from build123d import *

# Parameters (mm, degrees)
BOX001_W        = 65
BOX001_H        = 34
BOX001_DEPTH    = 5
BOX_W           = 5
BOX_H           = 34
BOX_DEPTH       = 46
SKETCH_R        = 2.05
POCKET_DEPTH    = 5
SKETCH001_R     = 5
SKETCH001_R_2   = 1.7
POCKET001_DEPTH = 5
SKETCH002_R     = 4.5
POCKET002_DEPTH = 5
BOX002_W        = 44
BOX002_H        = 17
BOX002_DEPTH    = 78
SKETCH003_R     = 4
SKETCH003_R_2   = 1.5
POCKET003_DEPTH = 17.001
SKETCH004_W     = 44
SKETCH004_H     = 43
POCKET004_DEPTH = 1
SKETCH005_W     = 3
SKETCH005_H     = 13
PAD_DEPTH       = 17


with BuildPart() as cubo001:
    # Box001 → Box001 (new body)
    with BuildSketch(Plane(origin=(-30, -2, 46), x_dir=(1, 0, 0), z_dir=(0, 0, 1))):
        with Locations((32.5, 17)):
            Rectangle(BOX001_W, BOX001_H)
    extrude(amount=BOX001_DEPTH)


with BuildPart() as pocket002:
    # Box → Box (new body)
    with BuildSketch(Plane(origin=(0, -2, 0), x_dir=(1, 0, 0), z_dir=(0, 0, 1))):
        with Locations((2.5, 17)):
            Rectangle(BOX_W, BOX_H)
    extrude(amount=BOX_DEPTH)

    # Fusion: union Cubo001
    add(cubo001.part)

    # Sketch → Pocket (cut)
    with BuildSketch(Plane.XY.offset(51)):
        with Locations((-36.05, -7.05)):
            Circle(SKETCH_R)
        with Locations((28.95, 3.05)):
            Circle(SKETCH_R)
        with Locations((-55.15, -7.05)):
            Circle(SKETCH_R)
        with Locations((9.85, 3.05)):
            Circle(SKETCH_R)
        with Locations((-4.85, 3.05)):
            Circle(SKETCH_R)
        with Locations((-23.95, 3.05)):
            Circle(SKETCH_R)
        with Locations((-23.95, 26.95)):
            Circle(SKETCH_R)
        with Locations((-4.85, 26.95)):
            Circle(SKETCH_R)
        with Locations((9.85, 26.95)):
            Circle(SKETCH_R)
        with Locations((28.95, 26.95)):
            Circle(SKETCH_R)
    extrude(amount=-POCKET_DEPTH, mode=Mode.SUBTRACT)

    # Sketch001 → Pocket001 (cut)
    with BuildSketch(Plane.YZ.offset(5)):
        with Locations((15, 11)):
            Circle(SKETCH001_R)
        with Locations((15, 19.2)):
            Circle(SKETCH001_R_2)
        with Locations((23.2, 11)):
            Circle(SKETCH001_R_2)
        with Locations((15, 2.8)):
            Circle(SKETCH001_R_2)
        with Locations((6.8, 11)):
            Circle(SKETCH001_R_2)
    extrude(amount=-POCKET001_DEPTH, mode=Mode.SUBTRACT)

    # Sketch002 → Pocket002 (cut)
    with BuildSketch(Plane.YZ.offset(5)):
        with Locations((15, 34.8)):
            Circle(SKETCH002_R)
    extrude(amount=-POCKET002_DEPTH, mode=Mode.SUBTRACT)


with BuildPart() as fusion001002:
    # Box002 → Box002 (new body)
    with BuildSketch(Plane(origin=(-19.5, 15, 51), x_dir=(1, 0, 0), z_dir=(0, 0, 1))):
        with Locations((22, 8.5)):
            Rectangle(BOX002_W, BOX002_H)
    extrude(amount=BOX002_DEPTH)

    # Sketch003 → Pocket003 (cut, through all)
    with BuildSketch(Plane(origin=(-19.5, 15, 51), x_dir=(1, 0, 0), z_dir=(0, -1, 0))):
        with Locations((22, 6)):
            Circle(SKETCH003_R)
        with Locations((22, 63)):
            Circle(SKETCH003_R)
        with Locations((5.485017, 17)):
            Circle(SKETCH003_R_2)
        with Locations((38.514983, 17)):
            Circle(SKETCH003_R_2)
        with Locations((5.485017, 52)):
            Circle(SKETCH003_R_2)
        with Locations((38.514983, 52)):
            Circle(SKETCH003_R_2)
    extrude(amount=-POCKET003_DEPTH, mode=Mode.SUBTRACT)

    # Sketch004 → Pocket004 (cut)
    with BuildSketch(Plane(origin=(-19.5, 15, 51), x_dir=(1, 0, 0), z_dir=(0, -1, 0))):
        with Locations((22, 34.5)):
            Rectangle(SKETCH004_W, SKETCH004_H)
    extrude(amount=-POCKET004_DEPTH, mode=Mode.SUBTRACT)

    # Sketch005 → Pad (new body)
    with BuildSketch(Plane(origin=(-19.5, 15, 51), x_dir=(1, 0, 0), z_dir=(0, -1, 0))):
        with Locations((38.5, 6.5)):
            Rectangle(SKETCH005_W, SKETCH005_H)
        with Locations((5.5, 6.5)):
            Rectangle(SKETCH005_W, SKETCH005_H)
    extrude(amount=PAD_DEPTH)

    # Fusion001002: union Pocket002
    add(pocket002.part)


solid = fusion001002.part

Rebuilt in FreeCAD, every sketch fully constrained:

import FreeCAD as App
import Part
import Sketcher
from FreeCAD import Vector
Q = App.Units.Quantity


def add_polygon(sketch, points):
    """Adds a closed chain of lines whose ends are joined by coincident constraints."""
    first, n = sketch.GeometryCount, len(points)
    for a, b in zip(points, points[1:] + points[:1]):
        sketch.addGeometry(Part.LineSegment(App.Vector(*a, 0), App.Vector(*b, 0)), False)
    for i in range(n):
        sketch.addConstraint(Sketcher.Constraint("Coincident", first + i, 2, first + (i + 1) % n, 1))

doc = App.newDocument("Part")
body = doc.addObject("PartDesign::Body", "Body")

# Sketch on XY plane
sketch1 = body.newObject("Sketcher::SketchObject", "Sketch")
sketch1.AttachmentSupport = (doc.getObject("XY_Plane"), [""])
sketch1.MapMode = "FlatFace"
sketch1.AttachmentOffset = App.Placement(Vector(0, 0, 46), App.Rotation())
add_polygon(sketch1, [(-30, 32), (-30, -2), (35, -2), (35, 32)])  # lines 0-3
sketch1.addConstraint(Sketcher.Constraint("Vertical", 0))
sketch1.addConstraint(Sketcher.Constraint("Horizontal", 1))
sketch1.addConstraint(Sketcher.Constraint("Vertical", 2))
sketch1.addConstraint(Sketcher.Constraint("Horizontal", 3))
sketch1.addConstraint(Sketcher.Constraint("DistanceX", 1, 1, 1, 2, Q("65 mm")))
sketch1.addConstraint(Sketcher.Constraint("DistanceY", 0, 2, 0, 1, Q("34 mm")))
sketch1.addConstraint(Sketcher.Constraint("DistanceX", 0, 2, -1, 1, Q("30 mm")))
sketch1.addConstraint(Sketcher.Constraint("DistanceY", 0, 2, -1, 1, Q("2 mm")))
pad1 = body.newObject("PartDesign::Pad", "Pad")
pad1.Profile = sketch1
pad1.Length = 5
body2 = doc.addObject("PartDesign::Body", "Body001")

# Sketch on XY plane
sketch2 = body2.newObject("Sketcher::SketchObject", "Sketch001")
sketch2.AttachmentSupport = (doc.getObject("XY_Plane001"), [""])
sketch2.MapMode = "FlatFace"
add_polygon(sketch2, [(0, 32), (0, -2), (5, -2), (5, 32)])  # lines 0-3
sketch2.addConstraint(Sketcher.Constraint("Vertical", 0))
sketch2.addConstraint(Sketcher.Constraint("Horizontal", 1))
sketch2.addConstraint(Sketcher.Constraint("Vertical", 2))
sketch2.addConstraint(Sketcher.Constraint("Horizontal", 3))
sketch2.addConstraint(Sketcher.Constraint("PointOnObject", 0, 2, -2))
sketch2.addConstraint(Sketcher.Constraint("DistanceX", 1, 1, 1, 2, Q("5 mm")))
sketch2.addConstraint(Sketcher.Constraint("DistanceY", 0, 2, 0, 1, Q("34 mm")))
sketch2.addConstraint(Sketcher.Constraint("DistanceY", 0, 2, -1, 1, Q("2 mm")))
pad2 = body2.newObject("PartDesign::Pad", "Pad001")
pad2.Profile = sketch2
pad2.Length = 46
doc.recompute()

boolean = body2.newObject("PartDesign::Boolean", "Boolean")
boolean.Type = "Fuse"
boolean.addObjects([body])

# Sketch on XY plane
sketch3 = body2.newObject("Sketcher::SketchObject", "Sketch002")
sketch3.AttachmentSupport = (doc.getObject("XY_Plane001"), [""])
sketch3.MapMode = "FlatFace"
sketch3.AttachmentOffset = App.Placement(Vector(0, 0, 51), App.Rotation())
sketch3.addGeometry(Part.Circle(Vector(-36.05, -7.05, 0), Vector(0, 0, 1), 2.05), False)
sketch3.addGeometry(Part.Circle(Vector(28.95, 3.05, 0), Vector(0, 0, 1), 2.05), False)
sketch3.addGeometry(Part.Circle(Vector(-55.15, -7.05, 0), Vector(0, 0, 1), 2.05), False)
sketch3.addGeometry(Part.Circle(Vector(9.85, 3.05, 0), Vector(0, 0, 1), 2.05), False)
sketch3.addGeometry(Part.Circle(Vector(-4.85, 3.05, 0), Vector(0, 0, 1), 2.05), False)
sketch3.addGeometry(Part.Circle(Vector(-23.95, 3.05, 0), Vector(0, 0, 1), 2.05), False)
sketch3.addGeometry(Part.Circle(Vector(-23.95, 26.95, 0), Vector(0, 0, 1), 2.05), False)
sketch3.addGeometry(Part.Circle(Vector(-4.85, 26.95, 0), Vector(0, 0, 1), 2.05), False)
sketch3.addGeometry(Part.Circle(Vector(9.85, 26.95, 0), Vector(0, 0, 1), 2.05), False)
sketch3.addGeometry(Part.Circle(Vector(28.95, 26.95, 0), Vector(0, 0, 1), 2.05), False)
sketch3.addConstraint(Sketcher.Constraint("Equal", 0, 1))
sketch3.addConstraint(Sketcher.Constraint("Equal", 1, 2))
sketch3.addConstraint(Sketcher.Constraint("Equal", 2, 3))
sketch3.addConstraint(Sketcher.Constraint("Equal", 3, 4))
sketch3.addConstraint(Sketcher.Constraint("Equal", 4, 5))
sketch3.addConstraint(Sketcher.Constraint("Equal", 5, 6))
sketch3.addConstraint(Sketcher.Constraint("Equal", 6, 7))
sketch3.addConstraint(Sketcher.Constraint("Equal", 7, 8))
sketch3.addConstraint(Sketcher.Constraint("Equal", 8, 9))
sketch3.addConstraint(Sketcher.Constraint("Horizontal", 0, 3, 2, 3))
sketch3.addConstraint(Sketcher.Constraint("Horizontal", 1, 3, 3, 3))
sketch3.addConstraint(Sketcher.Constraint("Horizontal", 3, 3, 4, 3))
sketch3.addConstraint(Sketcher.Constraint("Horizontal", 4, 3, 5, 3))
sketch3.addConstraint(Sketcher.Constraint("Horizontal", 6, 3, 7, 3))
sketch3.addConstraint(Sketcher.Constraint("Horizontal", 7, 3, 8, 3))
sketch3.addConstraint(Sketcher.Constraint("Horizontal", 8, 3, 9, 3))
sketch3.addConstraint(Sketcher.Constraint("Vertical", 5, 3, 6, 3))
sketch3.addConstraint(Sketcher.Constraint("Vertical", 4, 3, 7, 3))
sketch3.addConstraint(Sketcher.Constraint("Vertical", 3, 3, 8, 3))
sketch3.addConstraint(Sketcher.Constraint("Vertical", 1, 3, 9, 3))
sketch3.addConstraint(Sketcher.Constraint("Diameter", 0, Q("4.1 mm")))
sketch3.addConstraint(Sketcher.Constraint("DistanceX", 0, 3, 1, 3, Q("65 mm")))
sketch3.addConstraint(Sketcher.Constraint("DistanceX", 2, 3, 3, 3, Q("65 mm")))
sketch3.addConstraint(Sketcher.Constraint("DistanceY", 0, 3, 6, 3, Q("34 mm")))
sketch3.addConstraint(Sketcher.Constraint("DistanceY", 0, 3, 1, 3, Q("10.1 mm")))
sketch3.addConstraint(Sketcher.Constraint("DistanceX", 2, 3, 0, 3, Q("19.1 mm")))
sketch3.addConstraint(Sketcher.Constraint("DistanceX", 4, 3, 3, 3, Q("14.7 mm")))
sketch3.addConstraint(Sketcher.Constraint("DistanceX", 0, 3, 5, 3, Q("12.1 mm")))
sketch3.addConstraint(Sketcher.Constraint("DistanceX", 0, 3, -1, 1, Q("36.05 mm")))
sketch3.addConstraint(Sketcher.Constraint("DistanceY", 0, 3, -1, 1, Q("7.05 mm")))
pocket1 = body2.newObject("PartDesign::Pocket", "Pocket")
pocket1.Profile = sketch3
pocket1.Length = 5

# Sketch on YZ plane
sketch4 = body2.newObject("Sketcher::SketchObject", "Sketch003")
sketch4.AttachmentSupport = (doc.getObject("YZ_Plane001"), [""])
sketch4.MapMode = "FlatFace"
sketch4.AttachmentOffset = App.Placement(Vector(0, 0, 5), App.Rotation())
sketch4.addGeometry(Part.Circle(Vector(15, 11, 0), Vector(0, 0, 1), 5), False)
sketch4.addGeometry(Part.Circle(Vector(15, 19.2, 0), Vector(0, 0, 1), 1.7), False)
sketch4.addGeometry(Part.Circle(Vector(23.2, 11, 0), Vector(0, 0, 1), 1.7), False)
sketch4.addGeometry(Part.Circle(Vector(15, 2.8, 0), Vector(0, 0, 1), 1.7), False)
sketch4.addGeometry(Part.Circle(Vector(6.8, 11, 0), Vector(0, 0, 1), 1.7), False)
sketch4.addConstraint(Sketcher.Constraint("Equal", 1, 2))
sketch4.addConstraint(Sketcher.Constraint("Equal", 2, 3))
sketch4.addConstraint(Sketcher.Constraint("Equal", 3, 4))
sketch4.addConstraint(Sketcher.Constraint("Horizontal", 0, 3, 2, 3))
sketch4.addConstraint(Sketcher.Constraint("Horizontal", 2, 3, 4, 3))
sketch4.addConstraint(Sketcher.Constraint("Vertical", 0, 3, 1, 3))
sketch4.addConstraint(Sketcher.Constraint("Vertical", 1, 3, 3, 3))
sketch4.addConstraint(Sketcher.Constraint("Diameter", 0, Q("10 mm")))
sketch4.addConstraint(Sketcher.Constraint("Diameter", 1, Q("3.4 mm")))
sketch4.addConstraint(Sketcher.Constraint("DistanceX", -1, 1, 0, 3, Q("15 mm")))
sketch4.addConstraint(Sketcher.Constraint("DistanceY", -1, 1, 0, 3, Q("11 mm")))
sketch4.addConstraint(Sketcher.Constraint("DistanceY", -1, 1, 1, 3, Q("19.2 mm")))
sketch4.addConstraint(Sketcher.Constraint("DistanceX", -1, 1, 2, 3, Q("23.2 mm")))
sketch4.addConstraint(Sketcher.Constraint("DistanceY", -1, 1, 3, 3, Q("2.8 mm")))
sketch4.addConstraint(Sketcher.Constraint("DistanceX", -1, 1, 4, 3, Q("6.8 mm")))
pocket2 = body2.newObject("PartDesign::Pocket", "Pocket001")
pocket2.Profile = sketch4
pocket2.Length = 5

# Sketch on YZ plane
sketch5 = body2.newObject("Sketcher::SketchObject", "Sketch004")
sketch5.AttachmentSupport = (doc.getObject("YZ_Plane001"), [""])
sketch5.MapMode = "FlatFace"
sketch5.AttachmentOffset = App.Placement(Vector(0, 0, 5), App.Rotation())
sketch5.addGeometry(Part.Circle(Vector(15, 34.8, 0), Vector(0, 0, 1), 4.5), False)
sketch5.addConstraint(Sketcher.Constraint("Diameter", 0, Q("9 mm")))
sketch5.addConstraint(Sketcher.Constraint("DistanceX", -1, 1, 0, 3, Q("15 mm")))
sketch5.addConstraint(Sketcher.Constraint("DistanceY", -1, 1, 0, 3, Q("34.8 mm")))
pocket3 = body2.newObject("PartDesign::Pocket", "Pocket002")
pocket3.Profile = sketch5
pocket3.Length = 5
body3 = doc.addObject("PartDesign::Body", "Body002")

# Sketch on XY plane
sketch6 = body3.newObject("Sketcher::SketchObject", "Sketch005")
sketch6.AttachmentSupport = (doc.getObject("XY_Plane002"), [""])
sketch6.MapMode = "FlatFace"
sketch6.AttachmentOffset = App.Placement(Vector(0, 0, 51), App.Rotation())
add_polygon(sketch6, [(-19.5, 32), (-19.5, 15), (24.5, 15), (24.5, 32)])  # lines 0-3
sketch6.addConstraint(Sketcher.Constraint("Vertical", 0))
sketch6.addConstraint(Sketcher.Constraint("Horizontal", 1))
sketch6.addConstraint(Sketcher.Constraint("Vertical", 2))
sketch6.addConstraint(Sketcher.Constraint("Horizontal", 3))
sketch6.addConstraint(Sketcher.Constraint("DistanceX", 1, 1, 1, 2, Q("44 mm")))
sketch6.addConstraint(Sketcher.Constraint("DistanceY", 0, 2, 0, 1, Q("17 mm")))
sketch6.addConstraint(Sketcher.Constraint("DistanceY", -1, 1, 0, 2, Q("15 mm")))
sketch6.addConstraint(Sketcher.Constraint("DistanceX", 0, 2, -1, 1, Q("19.5 mm")))
pad3 = body3.newObject("PartDesign::Pad", "Pad002")
pad3.Profile = sketch6
pad3.Length = 78

# Sketch on XZ plane
sketch7 = body3.newObject("Sketcher::SketchObject", "Sketch006")
sketch7.AttachmentSupport = (doc.getObject("XZ_Plane002"), [""])
sketch7.MapMode = "FlatFace"
sketch7.AttachmentOffset = App.Placement(Vector(0, 0, -15), App.Rotation())
sketch7.addGeometry(Part.Circle(Vector(2.5, 57, 0), Vector(0, 0, 1), 4), False)
sketch7.addGeometry(Part.Circle(Vector(2.5, 114, 0), Vector(0, 0, 1), 4), False)
sketch7.addGeometry(Part.Circle(Vector(-14.014983, 68, 0), Vector(0, 0, 1), 1.5), False)
sketch7.addGeometry(Part.Circle(Vector(19.014983, 68, 0), Vector(0, 0, 1), 1.5), False)
sketch7.addGeometry(Part.Circle(Vector(-14.014983, 103, 0), Vector(0, 0, 1), 1.5), False)
sketch7.addGeometry(Part.Circle(Vector(19.014983, 103, 0), Vector(0, 0, 1), 1.5), False)
sketch7.addConstraint(Sketcher.Constraint("Equal", 0, 1))
sketch7.addConstraint(Sketcher.Constraint("Equal", 2, 3))
sketch7.addConstraint(Sketcher.Constraint("Equal", 3, 4))
sketch7.addConstraint(Sketcher.Constraint("Equal", 4, 5))
sketch7.addConstraint(Sketcher.Constraint("Horizontal", 2, 3, 3, 3))
sketch7.addConstraint(Sketcher.Constraint("Horizontal", 4, 3, 5, 3))
sketch7.addConstraint(Sketcher.Constraint("Vertical", 0, 3, 1, 3))
sketch7.addConstraint(Sketcher.Constraint("Vertical", 2, 3, 4, 3))
sketch7.addConstraint(Sketcher.Constraint("Vertical", 3, 3, 5, 3))
sketch7.addConstraint(Sketcher.Constraint("Diameter", 0, Q("8 mm")))
sketch7.addConstraint(Sketcher.Constraint("Diameter", 2, Q("3 mm")))
sketch7.addConstraint(Sketcher.Constraint("DistanceY", -1, 1, 0, 3, Q("57 mm")))
sketch7.addConstraint(Sketcher.Constraint("DistanceY", -1, 1, 1, 3, Q("114 mm")))
sketch7.addConstraint(Sketcher.Constraint("DistanceY", -1, 1, 2, 3, Q("68 mm")))
sketch7.addConstraint(Sketcher.Constraint("DistanceY", -1, 1, 4, 3, Q("103 mm")))
sketch7.addConstraint(Sketcher.Constraint("DistanceX", -1, 1, 0, 3, Q("2.5 mm")))
sketch7.addConstraint(Sketcher.Constraint("DistanceX", 2, 3, -1, 1, Q("14.014983 mm")))
sketch7.addConstraint(Sketcher.Constraint("DistanceX", -1, 1, 3, 3, Q("19.014983 mm")))
pocket4 = body3.newObject("PartDesign::Pocket", "Pocket003")
pocket4.Profile = sketch7
pocket4.Type = "ThroughAll"

# Sketch on XZ plane
sketch8 = body3.newObject("Sketcher::SketchObject", "Sketch007")
sketch8.AttachmentSupport = (doc.getObject("XZ_Plane002"), [""])
sketch8.MapMode = "FlatFace"
sketch8.AttachmentOffset = App.Placement(Vector(0, 0, -15), App.Rotation())
add_polygon(sketch8, [(-19.5, 107), (-19.5, 64), (24.5, 64), (24.5, 107)])  # lines 0-3
sketch8.addConstraint(Sketcher.Constraint("Vertical", 0))
sketch8.addConstraint(Sketcher.Constraint("Horizontal", 1))
sketch8.addConstraint(Sketcher.Constraint("Vertical", 2))
sketch8.addConstraint(Sketcher.Constraint("Horizontal", 3))
sketch8.addConstraint(Sketcher.Constraint("DistanceX", 1, 1, 1, 2, Q("44 mm")))
sketch8.addConstraint(Sketcher.Constraint("DistanceY", 0, 2, 0, 1, Q("43 mm")))
sketch8.addConstraint(Sketcher.Constraint("DistanceY", -1, 1, 0, 2, Q("64 mm")))
sketch8.addConstraint(Sketcher.Constraint("DistanceX", 0, 2, -1, 1, Q("19.5 mm")))
pocket5 = body3.newObject("PartDesign::Pocket", "Pocket004")
pocket5.Profile = sketch8
pocket5.Length = 1

# Sketch on XZ plane
sketch9 = body3.newObject("Sketcher::SketchObject", "Sketch008")
sketch9.AttachmentSupport = (doc.getObject("XZ_Plane002"), [""])
sketch9.MapMode = "FlatFace"
sketch9.AttachmentOffset = App.Placement(Vector(0, 0, -15), App.Rotation())
add_polygon(sketch9, [(17.5, 64), (17.5, 51), (20.5, 51), (20.5, 64)])  # lines 0-3
add_polygon(sketch9, [(-15.5, 64), (-15.5, 51), (-12.5, 51), (-12.5, 64)])  # lines 4-7
sketch9.addConstraint(Sketcher.Constraint("Vertical", 0))
sketch9.addConstraint(Sketcher.Constraint("Horizontal", 1))
sketch9.addConstraint(Sketcher.Constraint("Vertical", 2))
sketch9.addConstraint(Sketcher.Constraint("Horizontal", 3))
sketch9.addConstraint(Sketcher.Constraint("Vertical", 4))
sketch9.addConstraint(Sketcher.Constraint("Horizontal", 5))
sketch9.addConstraint(Sketcher.Constraint("Vertical", 6))
sketch9.addConstraint(Sketcher.Constraint("Horizontal", 7))
sketch9.addConstraint(Sketcher.Constraint("Horizontal", 1, 2, 4, 2))
sketch9.addConstraint(Sketcher.Constraint("Horizontal", 3, 2, 6, 2))
sketch9.addConstraint(Sketcher.Constraint("Equal", 3, 5))
sketch9.addConstraint(Sketcher.Constraint("DistanceX", 1, 1, 1, 2, Q("3 mm")))
sketch9.addConstraint(Sketcher.Constraint("DistanceY", 0, 2, 0, 1, Q("13 mm")))
sketch9.addConstraint(Sketcher.Constraint("DistanceY", -1, 1, 0, 2, Q("51 mm")))
sketch9.addConstraint(Sketcher.Constraint("DistanceX", 4, 2, 0, 2, Q("33 mm")))
sketch9.addConstraint(Sketcher.Constraint("DistanceX", -1, 1, 0, 2, Q("17.5 mm")))
pad4 = body3.newObject("PartDesign::Pad", "Pad003")
pad4.Profile = sketch9
pad4.Length = 17
doc.recompute()

boolean2 = body3.newObject("PartDesign::Boolean", "Boolean001")
boolean2.Type = "Fuse"
boolean2.addObjects([body2])

doc.recompute()
